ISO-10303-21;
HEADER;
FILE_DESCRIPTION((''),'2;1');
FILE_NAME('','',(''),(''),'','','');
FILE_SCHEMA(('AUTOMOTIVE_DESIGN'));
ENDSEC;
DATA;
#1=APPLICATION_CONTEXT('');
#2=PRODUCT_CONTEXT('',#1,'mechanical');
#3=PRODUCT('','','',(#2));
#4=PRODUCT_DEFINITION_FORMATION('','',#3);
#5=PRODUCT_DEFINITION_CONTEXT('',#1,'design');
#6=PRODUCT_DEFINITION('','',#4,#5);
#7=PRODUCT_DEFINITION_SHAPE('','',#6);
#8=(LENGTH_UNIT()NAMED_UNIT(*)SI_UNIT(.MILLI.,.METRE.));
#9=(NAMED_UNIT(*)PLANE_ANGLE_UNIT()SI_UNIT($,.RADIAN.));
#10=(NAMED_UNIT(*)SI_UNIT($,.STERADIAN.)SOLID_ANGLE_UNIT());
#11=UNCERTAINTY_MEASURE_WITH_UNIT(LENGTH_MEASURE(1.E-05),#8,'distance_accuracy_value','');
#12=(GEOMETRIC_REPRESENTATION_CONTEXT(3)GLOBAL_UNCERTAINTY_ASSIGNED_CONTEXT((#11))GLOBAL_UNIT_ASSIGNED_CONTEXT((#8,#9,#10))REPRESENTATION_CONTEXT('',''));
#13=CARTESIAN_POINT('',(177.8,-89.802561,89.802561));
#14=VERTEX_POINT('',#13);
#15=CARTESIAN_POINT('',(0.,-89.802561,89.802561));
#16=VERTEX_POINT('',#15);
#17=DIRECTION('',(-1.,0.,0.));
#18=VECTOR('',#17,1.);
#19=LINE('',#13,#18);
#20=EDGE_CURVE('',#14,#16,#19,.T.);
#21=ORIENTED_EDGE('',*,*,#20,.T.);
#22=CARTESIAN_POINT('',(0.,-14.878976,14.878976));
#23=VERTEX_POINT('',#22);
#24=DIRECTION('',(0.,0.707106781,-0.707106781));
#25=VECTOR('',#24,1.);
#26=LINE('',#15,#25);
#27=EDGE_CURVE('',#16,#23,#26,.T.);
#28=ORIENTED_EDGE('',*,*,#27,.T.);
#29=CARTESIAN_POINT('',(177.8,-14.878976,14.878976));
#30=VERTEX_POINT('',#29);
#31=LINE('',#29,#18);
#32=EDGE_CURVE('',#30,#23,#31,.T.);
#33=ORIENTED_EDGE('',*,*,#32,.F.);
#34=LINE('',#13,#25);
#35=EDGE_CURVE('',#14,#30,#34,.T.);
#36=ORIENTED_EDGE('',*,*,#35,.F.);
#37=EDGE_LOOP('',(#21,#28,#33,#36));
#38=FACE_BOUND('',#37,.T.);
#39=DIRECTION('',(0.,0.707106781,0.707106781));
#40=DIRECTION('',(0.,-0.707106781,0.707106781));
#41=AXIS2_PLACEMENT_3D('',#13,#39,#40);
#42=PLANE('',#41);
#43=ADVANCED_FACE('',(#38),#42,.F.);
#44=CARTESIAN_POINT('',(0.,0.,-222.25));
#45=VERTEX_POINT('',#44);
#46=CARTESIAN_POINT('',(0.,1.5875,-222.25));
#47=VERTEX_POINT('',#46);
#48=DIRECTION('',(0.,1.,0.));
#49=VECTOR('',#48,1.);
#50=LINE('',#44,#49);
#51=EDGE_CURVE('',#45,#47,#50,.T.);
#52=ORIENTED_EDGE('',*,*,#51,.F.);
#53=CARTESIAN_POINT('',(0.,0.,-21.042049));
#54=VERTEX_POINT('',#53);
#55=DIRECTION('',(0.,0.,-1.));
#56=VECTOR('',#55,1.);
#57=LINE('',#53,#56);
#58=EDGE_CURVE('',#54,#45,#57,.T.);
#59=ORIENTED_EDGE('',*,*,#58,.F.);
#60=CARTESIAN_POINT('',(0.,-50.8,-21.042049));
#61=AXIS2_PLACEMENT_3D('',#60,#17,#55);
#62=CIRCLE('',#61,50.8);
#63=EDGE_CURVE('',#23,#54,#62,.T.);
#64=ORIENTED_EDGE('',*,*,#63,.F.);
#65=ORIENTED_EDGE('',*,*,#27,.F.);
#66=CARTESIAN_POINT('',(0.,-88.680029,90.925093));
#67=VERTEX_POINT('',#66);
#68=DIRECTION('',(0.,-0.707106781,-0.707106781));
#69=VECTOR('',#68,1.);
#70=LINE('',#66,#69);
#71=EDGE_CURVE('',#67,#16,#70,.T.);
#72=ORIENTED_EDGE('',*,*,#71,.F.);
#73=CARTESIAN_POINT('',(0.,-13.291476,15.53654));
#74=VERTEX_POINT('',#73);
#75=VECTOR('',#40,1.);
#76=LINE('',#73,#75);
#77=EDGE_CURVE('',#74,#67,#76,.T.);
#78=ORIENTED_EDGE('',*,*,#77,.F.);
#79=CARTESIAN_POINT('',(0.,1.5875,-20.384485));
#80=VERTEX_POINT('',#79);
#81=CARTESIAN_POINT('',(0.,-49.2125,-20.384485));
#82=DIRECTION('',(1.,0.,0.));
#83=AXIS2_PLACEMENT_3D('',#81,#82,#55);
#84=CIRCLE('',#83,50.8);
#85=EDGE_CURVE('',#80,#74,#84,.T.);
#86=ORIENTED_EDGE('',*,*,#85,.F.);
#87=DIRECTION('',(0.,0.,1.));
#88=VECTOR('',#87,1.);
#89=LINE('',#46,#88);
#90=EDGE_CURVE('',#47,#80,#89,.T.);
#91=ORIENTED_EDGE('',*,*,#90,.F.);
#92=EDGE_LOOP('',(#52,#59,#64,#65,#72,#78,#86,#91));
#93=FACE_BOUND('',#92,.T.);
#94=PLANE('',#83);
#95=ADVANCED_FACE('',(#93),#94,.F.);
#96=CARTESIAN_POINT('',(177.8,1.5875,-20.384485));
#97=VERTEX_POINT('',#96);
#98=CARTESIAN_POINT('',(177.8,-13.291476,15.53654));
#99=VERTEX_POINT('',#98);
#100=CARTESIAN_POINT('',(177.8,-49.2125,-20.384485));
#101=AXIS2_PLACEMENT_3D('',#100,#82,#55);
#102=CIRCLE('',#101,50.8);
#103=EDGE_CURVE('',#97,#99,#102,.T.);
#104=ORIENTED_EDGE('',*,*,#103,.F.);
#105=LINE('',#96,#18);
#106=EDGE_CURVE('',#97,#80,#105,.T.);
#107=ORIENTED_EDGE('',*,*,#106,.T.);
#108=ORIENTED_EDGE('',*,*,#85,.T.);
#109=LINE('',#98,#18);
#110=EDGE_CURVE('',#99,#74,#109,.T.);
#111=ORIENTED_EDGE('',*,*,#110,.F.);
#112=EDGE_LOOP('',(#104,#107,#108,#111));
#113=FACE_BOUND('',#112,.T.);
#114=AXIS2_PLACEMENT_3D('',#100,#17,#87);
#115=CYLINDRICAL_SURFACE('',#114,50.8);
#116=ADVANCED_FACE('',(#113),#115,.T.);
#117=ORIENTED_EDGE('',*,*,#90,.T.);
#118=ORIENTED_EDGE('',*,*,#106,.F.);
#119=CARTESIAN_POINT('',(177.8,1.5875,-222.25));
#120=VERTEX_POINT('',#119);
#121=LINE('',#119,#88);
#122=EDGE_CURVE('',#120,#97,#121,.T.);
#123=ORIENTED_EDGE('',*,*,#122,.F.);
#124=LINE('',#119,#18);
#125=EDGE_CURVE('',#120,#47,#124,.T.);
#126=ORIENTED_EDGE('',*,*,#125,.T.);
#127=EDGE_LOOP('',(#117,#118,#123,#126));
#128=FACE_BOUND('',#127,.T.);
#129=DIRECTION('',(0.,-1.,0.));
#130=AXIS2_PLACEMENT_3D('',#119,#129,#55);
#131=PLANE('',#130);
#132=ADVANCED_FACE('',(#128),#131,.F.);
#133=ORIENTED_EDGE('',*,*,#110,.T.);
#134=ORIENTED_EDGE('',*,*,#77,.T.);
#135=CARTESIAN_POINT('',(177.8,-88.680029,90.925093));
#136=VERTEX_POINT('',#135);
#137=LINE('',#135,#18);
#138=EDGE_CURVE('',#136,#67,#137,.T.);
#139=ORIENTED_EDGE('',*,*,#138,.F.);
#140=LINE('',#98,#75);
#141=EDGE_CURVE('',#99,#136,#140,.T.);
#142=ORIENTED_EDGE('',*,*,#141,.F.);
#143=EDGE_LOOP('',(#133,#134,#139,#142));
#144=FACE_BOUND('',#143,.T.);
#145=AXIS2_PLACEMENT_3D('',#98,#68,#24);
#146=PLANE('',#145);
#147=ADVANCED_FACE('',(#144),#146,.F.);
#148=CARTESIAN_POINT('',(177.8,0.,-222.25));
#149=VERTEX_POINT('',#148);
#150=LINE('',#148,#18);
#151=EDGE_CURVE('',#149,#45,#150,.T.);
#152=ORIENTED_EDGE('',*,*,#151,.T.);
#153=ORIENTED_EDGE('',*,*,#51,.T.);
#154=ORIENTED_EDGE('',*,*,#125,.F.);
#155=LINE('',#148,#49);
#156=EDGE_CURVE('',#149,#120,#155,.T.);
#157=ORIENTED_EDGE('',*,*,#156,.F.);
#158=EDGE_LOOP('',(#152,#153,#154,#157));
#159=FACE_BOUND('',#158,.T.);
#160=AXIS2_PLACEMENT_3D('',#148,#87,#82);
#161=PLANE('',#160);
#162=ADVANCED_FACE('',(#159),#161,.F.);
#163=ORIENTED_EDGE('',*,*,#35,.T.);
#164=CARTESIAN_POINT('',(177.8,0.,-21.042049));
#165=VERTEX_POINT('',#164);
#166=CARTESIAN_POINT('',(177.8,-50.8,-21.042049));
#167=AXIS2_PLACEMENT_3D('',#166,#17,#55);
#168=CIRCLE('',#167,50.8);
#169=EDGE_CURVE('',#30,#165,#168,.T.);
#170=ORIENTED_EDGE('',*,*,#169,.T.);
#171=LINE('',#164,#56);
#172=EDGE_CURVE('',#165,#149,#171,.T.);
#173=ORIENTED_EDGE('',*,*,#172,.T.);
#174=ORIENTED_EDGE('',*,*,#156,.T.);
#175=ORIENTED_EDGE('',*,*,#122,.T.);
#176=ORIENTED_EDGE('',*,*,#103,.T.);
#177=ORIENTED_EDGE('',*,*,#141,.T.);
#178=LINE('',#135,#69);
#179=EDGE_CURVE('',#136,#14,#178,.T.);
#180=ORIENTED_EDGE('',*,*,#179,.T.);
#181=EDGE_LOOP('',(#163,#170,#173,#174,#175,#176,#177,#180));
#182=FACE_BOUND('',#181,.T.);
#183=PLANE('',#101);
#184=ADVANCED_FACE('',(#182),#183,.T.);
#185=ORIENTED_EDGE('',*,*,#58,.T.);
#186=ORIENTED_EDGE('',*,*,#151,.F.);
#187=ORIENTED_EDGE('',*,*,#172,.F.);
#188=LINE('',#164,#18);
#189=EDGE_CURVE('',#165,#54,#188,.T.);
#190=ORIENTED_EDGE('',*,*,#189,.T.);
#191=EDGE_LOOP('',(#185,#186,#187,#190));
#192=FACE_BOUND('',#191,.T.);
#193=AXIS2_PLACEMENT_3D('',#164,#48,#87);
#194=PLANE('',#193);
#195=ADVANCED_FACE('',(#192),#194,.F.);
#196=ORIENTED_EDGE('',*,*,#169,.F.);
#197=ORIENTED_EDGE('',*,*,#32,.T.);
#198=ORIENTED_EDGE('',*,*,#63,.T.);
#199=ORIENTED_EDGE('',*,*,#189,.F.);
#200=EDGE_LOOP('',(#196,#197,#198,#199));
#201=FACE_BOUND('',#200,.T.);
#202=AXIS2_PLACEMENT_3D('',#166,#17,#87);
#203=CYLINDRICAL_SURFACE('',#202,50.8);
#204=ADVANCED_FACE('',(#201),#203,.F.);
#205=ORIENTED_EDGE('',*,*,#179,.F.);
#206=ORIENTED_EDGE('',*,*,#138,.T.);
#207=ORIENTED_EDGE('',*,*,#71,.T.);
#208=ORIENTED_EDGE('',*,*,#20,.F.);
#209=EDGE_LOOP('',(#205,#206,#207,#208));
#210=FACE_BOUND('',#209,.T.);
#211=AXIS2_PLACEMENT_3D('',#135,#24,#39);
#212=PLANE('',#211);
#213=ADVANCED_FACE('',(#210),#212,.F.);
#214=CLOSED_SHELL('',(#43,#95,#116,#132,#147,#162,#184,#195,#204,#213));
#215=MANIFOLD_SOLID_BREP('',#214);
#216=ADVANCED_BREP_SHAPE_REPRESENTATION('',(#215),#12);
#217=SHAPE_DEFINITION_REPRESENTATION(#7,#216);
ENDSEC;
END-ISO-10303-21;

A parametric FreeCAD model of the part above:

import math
import FreeCAD as App
import Part
import Sketcher
from FreeCAD import Vector
Q = App.Units.Quantity

doc = App.newDocument("Part")
body = doc.addObject("PartDesign::Body", "Body")

sketch1 = body.newObject("Sketcher::SketchObject", "Sketch")
sketch1.AttachmentSupport = (doc.getObject("YZ_Plane"), [""])
sketch1.MapMode = "FlatFace"
sketch1.addGeometry(Part.LineSegment(Vector(0, -21, 0), Vector(0, -222.2, 0)), False)
sketch1.addGeometry(Part.LineSegment(Vector(0, -222.2, 0), Vector(1.6, -222.2, 0)), False)
sketch1.addGeometry(Part.LineSegment(Vector(1.6, -222.2, 0), Vector(1.6, -20.4, 0)), False)
sketch1.addGeometry(Part.ArcOfCircle(Part.Circle(Vector(-49.2, -20.4, 0), Vector(0, 0, 1), 50.8), math.radians(0), math.radians(45)), False)
sketch1.addGeometry(Part.LineSegment(Vector(-13.3, 15.5, 0), Vector(-88.7, 90.9, 0)), False)
sketch1.addGeometry(Part.LineSegment(Vector(-88.7, 90.9, 0), Vector(-89.8, 89.8, 0)), False)
sketch1.addGeometry(Part.LineSegment(Vector(-89.8, 89.8, 0), Vector(-14.9, 14.9, 0)), False)
sketch1.addGeometry(Part.ArcOfCircle(Part.Circle(Vector(-50.8, -21, 0), Vector(0, 0, 1), 50.8), math.radians(0), math.radians(45)), False)
sketch1.addConstraint(Sketcher.Constraint("Coincident", 0, 2, 1, 1))
sketch1.addConstraint(Sketcher.Constraint("Coincident", 1, 2, 2, 1))
sketch1.addConstraint(Sketcher.Constraint("Tangent", 2, 2, 3, 1))
sketch1.addConstraint(Sketcher.Constraint("Tangent", 3, 2, 4, 1))
sketch1.addConstraint(Sketcher.Constraint("Coincident", 4, 2, 5, 1))
sketch1.addConstraint(Sketcher.Constraint("Coincident", 5, 2, 6, 1))
sketch1.addConstraint(Sketcher.Constraint("Tangent", 6, 2, 7, 2))
sketch1.addConstraint(Sketcher.Constraint("Tangent", 7, 1, 0, 1))
sketch1.addConstraint(Sketcher.Constraint("Vertical", 0))
sketch1.addConstraint(Sketcher.Constraint("Horizontal", 1))
sketch1.addConstraint(Sketcher.Constraint("Vertical", 2))
sketch1.addConstraint(Sketcher.Constraint("Equal", 3, 7))
sketch1.addConstraint(Sketcher.Constraint("PointOnObject", 0, 2, -2))
sketch1.addConstraint(Sketcher.Constraint("Perpendicular", 4, 5))
sketch1.addConstraint(Sketcher.Constraint("Perpendicular", 5, 6))
sketch1.addConstraint(Sketcher.Constraint("Radius", 3, Q("2 in")))
sketch1.addConstraint(Sketcher.Constraint("Angle", 4, Q("135 deg")))
sketch1.addConstraint(Sketcher.Constraint("DistanceX", 1, 1, 1, 2, Q("0.0625 in")))
sketch1.addConstraint(Sketcher.Constraint("DistanceY", 0, 2, -1, 1, Q("8.75 in")))
sketch1.addConstraint(Sketcher.Constraint("Distance", 5, Q("0.0625 in")))
sketch1.addConstraint(Sketcher.Constraint("DistanceY", 0, 2, 0, 1, Q("201.207951 mm")))
sketch1.addConstraint(Sketcher.Constraint("Distance", 6, Q("105.957951 mm")))
pad1 = body.newObject("PartDesign::Pad", "Pad")
pad1.Profile = sketch1
pad1.Length = Q("7 in")

doc.recompute()
